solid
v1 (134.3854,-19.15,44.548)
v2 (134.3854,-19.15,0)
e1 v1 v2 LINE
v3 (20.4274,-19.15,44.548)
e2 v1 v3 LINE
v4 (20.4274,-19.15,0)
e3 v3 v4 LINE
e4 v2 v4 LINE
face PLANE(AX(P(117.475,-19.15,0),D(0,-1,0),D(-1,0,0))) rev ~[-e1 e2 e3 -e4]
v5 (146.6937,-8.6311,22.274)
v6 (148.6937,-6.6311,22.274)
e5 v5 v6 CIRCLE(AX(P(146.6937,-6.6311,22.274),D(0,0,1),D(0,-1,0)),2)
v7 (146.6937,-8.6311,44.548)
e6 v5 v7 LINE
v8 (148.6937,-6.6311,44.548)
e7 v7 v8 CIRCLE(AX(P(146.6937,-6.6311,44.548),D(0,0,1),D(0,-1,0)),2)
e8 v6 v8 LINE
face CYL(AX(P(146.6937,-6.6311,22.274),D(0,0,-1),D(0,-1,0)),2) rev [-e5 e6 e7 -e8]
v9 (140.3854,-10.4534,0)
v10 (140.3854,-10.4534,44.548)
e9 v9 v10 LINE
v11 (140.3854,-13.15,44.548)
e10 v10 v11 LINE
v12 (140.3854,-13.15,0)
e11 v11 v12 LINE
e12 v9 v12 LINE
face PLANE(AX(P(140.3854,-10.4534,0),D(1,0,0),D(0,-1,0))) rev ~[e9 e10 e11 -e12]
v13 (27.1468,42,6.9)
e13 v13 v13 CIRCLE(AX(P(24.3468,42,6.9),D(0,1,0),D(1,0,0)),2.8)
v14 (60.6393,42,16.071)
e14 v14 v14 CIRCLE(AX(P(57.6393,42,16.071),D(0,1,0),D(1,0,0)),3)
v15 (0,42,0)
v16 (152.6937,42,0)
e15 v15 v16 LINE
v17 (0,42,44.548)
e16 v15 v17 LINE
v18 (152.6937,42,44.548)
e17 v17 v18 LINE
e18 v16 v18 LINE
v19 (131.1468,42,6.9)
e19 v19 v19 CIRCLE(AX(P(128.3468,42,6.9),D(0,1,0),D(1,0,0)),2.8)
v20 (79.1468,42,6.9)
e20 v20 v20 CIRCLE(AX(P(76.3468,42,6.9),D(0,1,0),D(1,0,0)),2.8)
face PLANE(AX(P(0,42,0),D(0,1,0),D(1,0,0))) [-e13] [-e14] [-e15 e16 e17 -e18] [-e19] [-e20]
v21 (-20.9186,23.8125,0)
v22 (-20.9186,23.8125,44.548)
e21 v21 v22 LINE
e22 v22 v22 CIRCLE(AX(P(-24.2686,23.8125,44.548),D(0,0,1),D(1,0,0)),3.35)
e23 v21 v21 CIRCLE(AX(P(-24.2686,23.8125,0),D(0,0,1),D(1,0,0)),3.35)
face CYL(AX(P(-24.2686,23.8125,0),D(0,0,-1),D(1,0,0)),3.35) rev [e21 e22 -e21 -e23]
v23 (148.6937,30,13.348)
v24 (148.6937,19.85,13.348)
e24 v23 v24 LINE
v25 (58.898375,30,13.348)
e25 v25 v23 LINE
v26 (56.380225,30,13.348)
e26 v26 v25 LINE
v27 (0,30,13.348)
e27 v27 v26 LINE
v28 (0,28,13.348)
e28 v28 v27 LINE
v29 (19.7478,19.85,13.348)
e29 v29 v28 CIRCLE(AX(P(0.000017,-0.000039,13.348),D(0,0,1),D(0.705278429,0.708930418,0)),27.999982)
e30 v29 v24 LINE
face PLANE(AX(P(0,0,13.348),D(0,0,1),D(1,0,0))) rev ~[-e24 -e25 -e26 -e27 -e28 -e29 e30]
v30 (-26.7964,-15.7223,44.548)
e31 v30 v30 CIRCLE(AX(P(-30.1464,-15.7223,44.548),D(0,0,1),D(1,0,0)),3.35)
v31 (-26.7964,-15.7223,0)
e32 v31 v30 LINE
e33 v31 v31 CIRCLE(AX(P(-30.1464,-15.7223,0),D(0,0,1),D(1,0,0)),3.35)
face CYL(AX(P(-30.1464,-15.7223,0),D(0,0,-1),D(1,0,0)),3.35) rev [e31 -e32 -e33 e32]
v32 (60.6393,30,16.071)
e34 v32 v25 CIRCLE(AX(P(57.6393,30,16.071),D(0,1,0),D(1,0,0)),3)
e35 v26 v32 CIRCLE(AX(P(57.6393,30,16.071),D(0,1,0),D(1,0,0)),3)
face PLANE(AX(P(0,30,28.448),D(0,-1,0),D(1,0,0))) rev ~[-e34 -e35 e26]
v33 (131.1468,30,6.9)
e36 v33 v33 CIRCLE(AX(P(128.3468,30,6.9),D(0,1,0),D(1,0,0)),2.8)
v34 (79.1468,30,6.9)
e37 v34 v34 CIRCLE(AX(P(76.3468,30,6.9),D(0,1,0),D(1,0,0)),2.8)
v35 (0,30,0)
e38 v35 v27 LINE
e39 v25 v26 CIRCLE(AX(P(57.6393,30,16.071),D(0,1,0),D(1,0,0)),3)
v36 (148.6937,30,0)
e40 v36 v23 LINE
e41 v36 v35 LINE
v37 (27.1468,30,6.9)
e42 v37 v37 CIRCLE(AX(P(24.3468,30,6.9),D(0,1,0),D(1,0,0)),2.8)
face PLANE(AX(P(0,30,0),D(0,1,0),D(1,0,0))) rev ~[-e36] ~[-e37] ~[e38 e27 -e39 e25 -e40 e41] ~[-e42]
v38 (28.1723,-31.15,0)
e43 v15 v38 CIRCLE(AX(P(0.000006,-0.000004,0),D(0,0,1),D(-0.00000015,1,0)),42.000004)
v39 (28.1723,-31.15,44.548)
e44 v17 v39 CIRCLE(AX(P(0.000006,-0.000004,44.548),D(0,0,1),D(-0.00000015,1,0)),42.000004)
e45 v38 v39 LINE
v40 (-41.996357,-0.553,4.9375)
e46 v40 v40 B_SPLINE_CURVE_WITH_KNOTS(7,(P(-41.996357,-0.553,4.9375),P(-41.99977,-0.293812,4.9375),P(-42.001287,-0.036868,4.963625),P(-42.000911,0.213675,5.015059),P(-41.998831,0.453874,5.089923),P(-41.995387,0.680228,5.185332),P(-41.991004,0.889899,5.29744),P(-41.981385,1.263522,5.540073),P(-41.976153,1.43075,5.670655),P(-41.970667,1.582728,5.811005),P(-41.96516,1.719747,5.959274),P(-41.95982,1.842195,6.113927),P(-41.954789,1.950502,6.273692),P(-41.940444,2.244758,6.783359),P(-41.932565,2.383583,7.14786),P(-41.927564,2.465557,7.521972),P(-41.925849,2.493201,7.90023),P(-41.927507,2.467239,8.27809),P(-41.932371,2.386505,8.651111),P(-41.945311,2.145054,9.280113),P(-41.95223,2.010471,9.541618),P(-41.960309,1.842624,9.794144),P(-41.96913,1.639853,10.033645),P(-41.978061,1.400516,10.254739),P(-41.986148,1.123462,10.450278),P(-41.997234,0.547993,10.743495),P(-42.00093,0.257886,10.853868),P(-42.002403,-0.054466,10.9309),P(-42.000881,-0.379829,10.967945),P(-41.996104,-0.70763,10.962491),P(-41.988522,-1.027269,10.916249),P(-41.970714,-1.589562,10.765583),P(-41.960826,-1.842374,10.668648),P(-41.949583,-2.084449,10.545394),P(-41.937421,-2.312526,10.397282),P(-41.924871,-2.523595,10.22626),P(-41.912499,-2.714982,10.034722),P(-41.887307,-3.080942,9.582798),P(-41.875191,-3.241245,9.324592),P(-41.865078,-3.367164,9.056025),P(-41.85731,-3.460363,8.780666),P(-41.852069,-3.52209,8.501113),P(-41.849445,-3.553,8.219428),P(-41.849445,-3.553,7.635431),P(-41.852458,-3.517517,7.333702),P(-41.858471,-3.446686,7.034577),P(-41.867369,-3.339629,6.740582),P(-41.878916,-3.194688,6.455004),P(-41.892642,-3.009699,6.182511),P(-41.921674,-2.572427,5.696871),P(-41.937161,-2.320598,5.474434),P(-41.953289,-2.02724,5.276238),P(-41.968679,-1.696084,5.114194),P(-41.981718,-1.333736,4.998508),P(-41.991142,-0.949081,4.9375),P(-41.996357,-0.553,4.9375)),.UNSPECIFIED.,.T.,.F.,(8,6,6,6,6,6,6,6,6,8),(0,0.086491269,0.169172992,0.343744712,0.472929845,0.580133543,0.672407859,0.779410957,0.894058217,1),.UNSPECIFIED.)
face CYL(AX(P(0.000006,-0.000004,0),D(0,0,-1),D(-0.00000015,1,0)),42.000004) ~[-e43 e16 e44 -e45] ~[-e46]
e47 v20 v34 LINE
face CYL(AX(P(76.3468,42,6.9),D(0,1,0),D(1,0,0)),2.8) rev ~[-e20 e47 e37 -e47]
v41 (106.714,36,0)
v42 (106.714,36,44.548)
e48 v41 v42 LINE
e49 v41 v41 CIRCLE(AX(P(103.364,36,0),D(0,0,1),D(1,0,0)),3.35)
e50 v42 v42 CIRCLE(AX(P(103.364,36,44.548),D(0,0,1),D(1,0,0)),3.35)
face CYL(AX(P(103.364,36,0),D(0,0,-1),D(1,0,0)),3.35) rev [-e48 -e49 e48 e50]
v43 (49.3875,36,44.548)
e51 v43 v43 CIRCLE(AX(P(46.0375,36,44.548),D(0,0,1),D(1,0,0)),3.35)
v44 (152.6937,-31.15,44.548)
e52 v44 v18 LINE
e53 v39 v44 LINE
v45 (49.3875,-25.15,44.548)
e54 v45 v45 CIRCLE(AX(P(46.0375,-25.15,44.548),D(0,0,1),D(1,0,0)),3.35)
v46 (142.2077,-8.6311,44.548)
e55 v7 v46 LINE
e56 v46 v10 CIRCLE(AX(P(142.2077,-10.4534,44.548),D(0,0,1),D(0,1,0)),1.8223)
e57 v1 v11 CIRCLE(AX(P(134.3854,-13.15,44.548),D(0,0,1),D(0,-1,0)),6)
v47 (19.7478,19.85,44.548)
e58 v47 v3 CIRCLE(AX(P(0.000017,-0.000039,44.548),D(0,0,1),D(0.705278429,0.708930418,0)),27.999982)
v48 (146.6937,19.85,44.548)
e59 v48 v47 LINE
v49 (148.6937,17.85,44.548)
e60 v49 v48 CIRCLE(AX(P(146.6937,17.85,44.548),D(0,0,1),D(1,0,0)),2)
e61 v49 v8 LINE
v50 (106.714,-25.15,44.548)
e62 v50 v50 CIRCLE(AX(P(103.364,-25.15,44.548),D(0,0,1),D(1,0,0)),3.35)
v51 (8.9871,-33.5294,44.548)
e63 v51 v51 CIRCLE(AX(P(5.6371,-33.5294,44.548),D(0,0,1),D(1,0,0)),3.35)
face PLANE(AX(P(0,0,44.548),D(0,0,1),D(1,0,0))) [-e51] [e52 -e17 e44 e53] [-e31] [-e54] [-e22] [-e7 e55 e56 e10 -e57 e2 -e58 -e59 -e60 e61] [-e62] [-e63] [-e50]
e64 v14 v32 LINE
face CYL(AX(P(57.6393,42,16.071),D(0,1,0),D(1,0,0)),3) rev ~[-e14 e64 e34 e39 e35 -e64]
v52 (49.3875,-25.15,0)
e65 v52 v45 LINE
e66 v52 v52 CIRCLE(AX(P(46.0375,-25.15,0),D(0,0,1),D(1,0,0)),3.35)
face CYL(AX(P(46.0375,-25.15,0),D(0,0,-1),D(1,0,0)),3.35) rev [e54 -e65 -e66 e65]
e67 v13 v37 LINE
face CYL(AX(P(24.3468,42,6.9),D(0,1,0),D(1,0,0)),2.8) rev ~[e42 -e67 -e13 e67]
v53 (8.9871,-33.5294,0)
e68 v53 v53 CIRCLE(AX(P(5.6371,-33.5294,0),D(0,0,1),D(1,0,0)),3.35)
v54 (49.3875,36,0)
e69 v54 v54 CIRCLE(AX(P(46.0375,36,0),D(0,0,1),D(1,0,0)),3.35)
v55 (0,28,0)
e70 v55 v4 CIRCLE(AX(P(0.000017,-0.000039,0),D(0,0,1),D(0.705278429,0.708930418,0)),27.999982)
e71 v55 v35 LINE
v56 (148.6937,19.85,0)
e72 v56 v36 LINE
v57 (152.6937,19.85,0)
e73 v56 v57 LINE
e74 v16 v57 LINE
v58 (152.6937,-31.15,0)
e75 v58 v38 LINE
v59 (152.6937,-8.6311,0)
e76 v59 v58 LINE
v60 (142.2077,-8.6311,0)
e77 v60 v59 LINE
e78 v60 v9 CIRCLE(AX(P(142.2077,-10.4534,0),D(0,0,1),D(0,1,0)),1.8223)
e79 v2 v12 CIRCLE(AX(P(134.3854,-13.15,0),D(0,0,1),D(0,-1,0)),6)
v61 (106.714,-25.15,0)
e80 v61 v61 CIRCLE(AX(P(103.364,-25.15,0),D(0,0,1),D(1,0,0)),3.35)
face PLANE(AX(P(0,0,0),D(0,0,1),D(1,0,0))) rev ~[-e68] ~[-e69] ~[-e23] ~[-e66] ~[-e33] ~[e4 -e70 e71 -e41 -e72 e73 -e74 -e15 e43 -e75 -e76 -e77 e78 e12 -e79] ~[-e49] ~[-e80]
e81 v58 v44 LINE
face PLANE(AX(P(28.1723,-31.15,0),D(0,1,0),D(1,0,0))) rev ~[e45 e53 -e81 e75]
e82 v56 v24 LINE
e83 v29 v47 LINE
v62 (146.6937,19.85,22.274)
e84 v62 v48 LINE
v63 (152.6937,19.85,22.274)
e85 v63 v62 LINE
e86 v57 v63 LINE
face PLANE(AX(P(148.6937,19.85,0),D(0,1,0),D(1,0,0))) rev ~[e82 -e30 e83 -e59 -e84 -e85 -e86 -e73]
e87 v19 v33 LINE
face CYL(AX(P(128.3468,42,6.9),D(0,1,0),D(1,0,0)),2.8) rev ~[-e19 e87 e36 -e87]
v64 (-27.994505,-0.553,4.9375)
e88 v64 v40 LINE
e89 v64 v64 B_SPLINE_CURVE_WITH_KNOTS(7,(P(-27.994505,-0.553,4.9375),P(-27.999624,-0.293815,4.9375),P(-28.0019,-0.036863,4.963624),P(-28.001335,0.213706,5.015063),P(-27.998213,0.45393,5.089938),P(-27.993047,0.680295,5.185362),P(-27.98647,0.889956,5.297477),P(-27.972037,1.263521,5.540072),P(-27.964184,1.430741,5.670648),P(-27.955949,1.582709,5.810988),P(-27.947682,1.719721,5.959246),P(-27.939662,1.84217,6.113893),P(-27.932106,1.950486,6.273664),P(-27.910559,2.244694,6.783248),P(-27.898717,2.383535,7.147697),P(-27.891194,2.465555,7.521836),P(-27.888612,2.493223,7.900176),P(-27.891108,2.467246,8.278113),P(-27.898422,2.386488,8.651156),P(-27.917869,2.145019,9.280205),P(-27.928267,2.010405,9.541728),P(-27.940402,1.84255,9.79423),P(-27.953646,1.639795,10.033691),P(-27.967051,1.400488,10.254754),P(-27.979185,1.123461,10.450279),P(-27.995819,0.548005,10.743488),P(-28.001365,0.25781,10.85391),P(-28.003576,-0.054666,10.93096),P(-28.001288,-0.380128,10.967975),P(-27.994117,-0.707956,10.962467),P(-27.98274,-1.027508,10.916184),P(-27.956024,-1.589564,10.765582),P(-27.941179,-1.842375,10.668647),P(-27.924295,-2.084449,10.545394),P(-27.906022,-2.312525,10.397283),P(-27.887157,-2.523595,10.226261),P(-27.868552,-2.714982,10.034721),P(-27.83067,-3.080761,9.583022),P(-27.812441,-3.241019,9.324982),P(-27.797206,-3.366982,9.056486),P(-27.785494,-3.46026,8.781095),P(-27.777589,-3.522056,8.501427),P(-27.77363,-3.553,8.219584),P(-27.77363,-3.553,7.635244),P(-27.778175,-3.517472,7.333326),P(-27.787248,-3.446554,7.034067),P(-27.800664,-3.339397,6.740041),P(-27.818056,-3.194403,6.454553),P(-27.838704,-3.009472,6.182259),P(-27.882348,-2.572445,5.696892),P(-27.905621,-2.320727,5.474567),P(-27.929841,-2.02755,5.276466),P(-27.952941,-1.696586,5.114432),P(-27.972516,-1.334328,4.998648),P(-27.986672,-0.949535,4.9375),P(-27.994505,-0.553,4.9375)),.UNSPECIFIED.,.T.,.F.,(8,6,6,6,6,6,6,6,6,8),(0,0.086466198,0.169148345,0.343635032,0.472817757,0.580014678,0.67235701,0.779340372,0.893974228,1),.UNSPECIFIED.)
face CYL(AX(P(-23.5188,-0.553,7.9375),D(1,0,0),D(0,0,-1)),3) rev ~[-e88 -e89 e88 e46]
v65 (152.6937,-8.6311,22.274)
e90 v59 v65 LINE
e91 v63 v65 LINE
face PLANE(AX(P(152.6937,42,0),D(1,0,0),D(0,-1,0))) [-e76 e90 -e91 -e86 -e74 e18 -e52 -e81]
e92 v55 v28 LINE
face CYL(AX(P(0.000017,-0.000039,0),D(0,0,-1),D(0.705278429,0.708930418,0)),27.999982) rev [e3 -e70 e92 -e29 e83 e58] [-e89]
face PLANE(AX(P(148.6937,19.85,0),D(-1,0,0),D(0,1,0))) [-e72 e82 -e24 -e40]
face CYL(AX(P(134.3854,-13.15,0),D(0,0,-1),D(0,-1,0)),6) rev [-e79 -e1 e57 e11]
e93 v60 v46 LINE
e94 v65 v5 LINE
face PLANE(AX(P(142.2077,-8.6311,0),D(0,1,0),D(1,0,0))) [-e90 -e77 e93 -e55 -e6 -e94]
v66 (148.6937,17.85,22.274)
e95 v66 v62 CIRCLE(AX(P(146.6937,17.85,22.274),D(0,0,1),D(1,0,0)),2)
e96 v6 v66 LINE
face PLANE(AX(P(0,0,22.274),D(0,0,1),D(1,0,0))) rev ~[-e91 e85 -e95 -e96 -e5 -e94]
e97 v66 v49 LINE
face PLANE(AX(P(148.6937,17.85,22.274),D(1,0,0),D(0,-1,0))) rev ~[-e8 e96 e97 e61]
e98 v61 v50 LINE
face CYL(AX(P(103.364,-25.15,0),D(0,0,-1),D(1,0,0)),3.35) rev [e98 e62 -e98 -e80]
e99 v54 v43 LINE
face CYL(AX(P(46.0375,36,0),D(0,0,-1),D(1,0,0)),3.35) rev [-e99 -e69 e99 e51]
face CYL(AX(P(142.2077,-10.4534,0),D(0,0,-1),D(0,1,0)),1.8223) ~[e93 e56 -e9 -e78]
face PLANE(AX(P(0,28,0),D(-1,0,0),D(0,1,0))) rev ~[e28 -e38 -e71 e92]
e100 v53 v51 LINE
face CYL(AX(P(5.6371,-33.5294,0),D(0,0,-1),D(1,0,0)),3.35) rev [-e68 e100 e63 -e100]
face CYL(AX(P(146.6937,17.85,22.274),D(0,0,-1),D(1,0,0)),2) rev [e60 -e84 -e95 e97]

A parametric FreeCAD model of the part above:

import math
import FreeCAD as App
import Part
import Sketcher

V = App.Vector

doc = App.newDocument("Part")
body = doc.addObject("PartDesign::Body", "Body")

# Sketch on XY plane
sketch1 = doc.addObject("Sketcher::SketchObject", "Sketch")
body.addObject(sketch1)
sketch1.AttachmentSupport = (doc.XY_Plane, [""])
sketch1.MapMode = "FlatFace"
sketch1.addGeometry(Part.ArcOfCircle(Part.Circle(V(0, 0, 0), V(0, 0, 1), 27.999966), math.radians(90), math.radians(316.848637)), False)
sketch1.addGeometry(Part.LineSegment(V(0, 28, 0), V(0, 30, 0)), False)
sketch1.addGeometry(Part.LineSegment(V(0, 30, 0), V(148.6937, 30, 0)), False)
sketch1.addGeometry(Part.LineSegment(V(148.6937, 30, 0), V(148.6937, 19.85, 0)), False)
sketch1.addGeometry(Part.LineSegment(V(148.6937, 19.85, 0), V(152.6937, 19.85, 0)), False)
sketch1.addGeometry(Part.LineSegment(V(152.6937, 19.85, 0), V(152.6937, 42, 0)), False)
sketch1.addGeometry(Part.LineSegment(V(152.6937, 42, 0), V(0, 42, 0)), False)
sketch1.addGeometry(Part.ArcOfCircle(Part.Circle(V(0, 0, 0), V(0, 0, 1), 42), math.radians(90), math.radians(312.126434)), False)
sketch1.addGeometry(Part.LineSegment(V(28.1723, -31.15, 0), V(152.6937, -31.15, 0)), False)
sketch1.addGeometry(Part.LineSegment(V(152.6937, -31.15, 0), V(152.6937, -8.6311, 0)), False)
sketch1.addGeometry(Part.LineSegment(V(152.6937, -8.6311, 0), V(142.2077, -8.6311, 0)), False)
sketch1.addGeometry(Part.ArcOfCircle(Part.Circle(V(142.2077, -10.4534, 0), V(0, 0, 1), 1.8223), math.radians(90), math.radians(180)), False)
sketch1.addGeometry(Part.LineSegment(V(140.3854, -10.4534, 0), V(140.3854, -13.15, 0)), False)
sketch1.addGeometry(Part.ArcOfCircle(Part.Circle(V(134.3854, -13.15, 0), V(0, 0, 1), 6), math.radians(-90), math.radians(0)), False)
sketch1.addGeometry(Part.LineSegment(V(134.3854, -19.15, 0), V(20.4274, -19.15, 0)), False)
sketch1.addGeometry(Part.Circle(V(5.6371, -33.5294, 0), V(0, 0, 1), 3.35), False)
sketch1.addGeometry(Part.Circle(V(46.0375, -25.15, 0), V(0, 0, 1), 3.35), False)
sketch1.addGeometry(Part.Circle(V(-30.1464, -15.7223, 0), V(0, 0, 1), 3.35), False)
sketch1.addGeometry(Part.Circle(V(103.364, -25.15, 0), V(0, 0, 1), 3.35), False)
sketch1.addGeometry(Part.Circle(V(-24.2686, 23.8125, 0), V(0, 0, 1), 3.35), False)
sketch1.addGeometry(Part.Circle(V(46.0375, 36, 0), V(0, 0, 1), 3.35), False)
sketch1.addGeometry(Part.Circle(V(103.364, 36, 0), V(0, 0, 1), 3.35), False)
sketch1.addConstraint(Sketcher.Constraint("Coincident", 0, 1, 1, 1))
sketch1.addConstraint(Sketcher.Constraint("Coincident", 1, 2, 2, 1))
sketch1.addConstraint(Sketcher.Constraint("Coincident", 2, 2, 3, 1))
sketch1.addConstraint(Sketcher.Constraint("Coincident", 3, 2, 4, 1))
sketch1.addConstraint(Sketcher.Constraint("Coincident", 4, 2, 5, 1))
sketch1.addConstraint(Sketcher.Constraint("Coincident", 5, 2, 6, 1))
sketch1.addConstraint(Sketcher.Constraint("Tangent", 6, 2, 7, 1))
sketch1.addConstraint(Sketcher.Constraint("Coincident", 7, 2, 8, 1))
sketch1.addConstraint(Sketcher.Constraint("Coincident", 8, 2, 9, 1))
sketch1.addConstraint(Sketcher.Constraint("Coincident", 9, 2, 10, 1))
sketch1.addConstraint(Sketcher.Constraint("Tangent", 10, 2, 11, 1))
sketch1.addConstraint(Sketcher.Constraint("Tangent", 11, 2, 12, 1))
sketch1.addConstraint(Sketcher.Constraint("Tangent", 12, 2, 13, 2))
sketch1.addConstraint(Sketcher.Constraint("Tangent", 13, 1, 14, 1))
sketch1.addConstraint(Sketcher.Constraint("Coincident", 14, 2, 0, 2))
sketch1.addConstraint(Sketcher.Constraint("Vertical", 1))
sketch1.addConstraint(Sketcher.Constraint("Horizontal", 2))
sketch1.addConstraint(Sketcher.Constraint("Vertical", 3))
sketch1.addConstraint(Sketcher.Constraint("Horizontal", 4))
sketch1.addConstraint(Sketcher.Constraint("Vertical", 5))
sketch1.addConstraint(Sketcher.Constraint("Horizontal", 6))
sketch1.addConstraint(Sketcher.Constraint("Horizontal", 8))
sketch1.addConstraint(Sketcher.Constraint("Vertical", 9))
sketch1.addConstraint(Sketcher.Constraint("Horizontal", 10))
sketch1.addConstraint(Sketcher.Constraint("Vertical", 12))
sketch1.addConstraint(Sketcher.Constraint("Horizontal", 14))
sketch1.addConstraint(Sketcher.Constraint("Coincident", 0, 3, -1, 1))
sketch1.addConstraint(Sketcher.Constraint("Coincident", 7, 3, -1, 1))
sketch1.addConstraint(Sketcher.Constraint("Equal", 15, 16))
sketch1.addConstraint(Sketcher.Constraint("Equal", 16, 17))
sketch1.addConstraint(Sketcher.Constraint("Equal", 17, 18))
sketch1.addConstraint(Sketcher.Constraint("Equal", 18, 19))
sketch1.addConstraint(Sketcher.Constraint("Equal", 19, 20))
sketch1.addConstraint(Sketcher.Constraint("Equal", 20, 21))
sketch1.addConstraint(Sketcher.Constraint("PointOnObject", 0, 1, -2))
sketch1.addConstraint(Sketcher.Constraint("Horizontal", 16, 3, 18, 3))
sketch1.addConstraint(Sketcher.Constraint("Horizontal", 20, 3, 21, 3))
sketch1.addConstraint(Sketcher.Constraint("Vertical", 16, 3, 20, 3))
sketch1.addConstraint(Sketcher.Constraint("Vertical", 18, 3, 21, 3))
sketch1.addConstraint(Sketcher.Constraint("Vertical", 5, 2, 8, 2))
sketch1.addConstraint(Sketcher.Constraint("Radius", 0, 28.0))
sketch1.addConstraint(Sketcher.Constraint("Radius", 7, 42.0))
sketch1.addConstraint(Sketcher.Constraint("Radius", 13, 6.0))
sketch1.addConstraint(Sketcher.Constraint("Diameter", 15, 6.7))
sketch1.addConstraint(Sketcher.Constraint("DistanceX", 4, 1, 4, 2, 4.0))
sketch1.addConstraint(Sketcher.Constraint("DistanceY", 1, 1, 1, 2, 2.0))
sketch1.addConstraint(Sketcher.Constraint("DistanceY", 16, 3, 13, 3, 12.0))
sketch1.addConstraint(Sketcher.Constraint("DistanceY", 1, 2, 20, 3, 6.0))
sketch1.addConstraint(Sketcher.Constraint("DistanceY", 7, 2, 16, 3, 6.0))
sketch1.addConstraint(Sketcher.Constraint("DistanceY", 13, 3, 3, 2, 33.0))
sketch1.addConstraint(Sketcher.Constraint("DistanceY", 3, 2, 3, 1, 10.15))
sketch1.addConstraint(Sketcher.Constraint("Radius", 11, 1.8223))
sketch1.addConstraint(Sketcher.Constraint("DistanceX", 10, 2, 10, 1, 10.486))
sketch1.addConstraint(Sketcher.Constraint("DistanceX", 14, 2, 14, 1, 113.958))
sketch1.addConstraint(Sketcher.Constraint("DistanceY", 9, 1, 9, 2, 22.519))
sketch1.addConstraint(Sketcher.Constraint("DistanceX", 14, 2, 16, 3, 25.61))
sketch1.addConstraint(Sketcher.Constraint("DistanceX", -1, 1, 15, 3, 5.637))
sketch1.addConstraint(Sketcher.Constraint("DistanceX", -1, 1, 18, 3, 103.364))
sketch1.addConstraint(Sketcher.Constraint("DistanceY", 15, 3, 11, 3, 23.076))
sketch1.addConstraint(Sketcher.Constraint("DistanceY", 15, 3, 17, 3, 17.807))
sketch1.addConstraint(Sketcher.Constraint("DistanceX", 17, 3, 16, 3, 76.184))
sketch1.addConstraint(Sketcher.Constraint("DistanceY", 15, 3, 19, 3, 57.342))
sketch1.addConstraint(Sketcher.Constraint("DistanceX", 19, 3, 16, 3, 70.306))
pad1 = doc.addObject("PartDesign::Pad", "Pad")
body.addObject(pad1)
pad1.Profile = sketch1
pad1.Length = 28.448

# Sketch on XY plane
sketch2 = doc.addObject("Sketcher::SketchObject", "Sketch001")
body.addObject(sketch2)
sketch2.AttachmentSupport = (doc.XY_Plane, [""])
sketch2.MapMode = "FlatFace"
sketch2.AttachmentOffset = App.Placement(V(0, 0, 28.448), App.Rotation())
sketch2.addGeometry(Part.LineSegment(V(19.7478, 19.85, 0), V(152.6937, 19.85, 0)), False)
sketch2.addGeometry(Part.LineSegment(V(152.6937, 19.85, 0), V(152.6937, 42, 0)), False)
sketch2.addGeometry(Part.LineSegment(V(152.6937, 42, 0), V(0, 42, 0)), False)
sketch2.addGeometry(Part.ArcOfCircle(Part.Circle(V(0, 0, 0), V(0, 0, 1), 42), math.radians(90), math.radians(312.126434)), False)
sketch2.addGeometry(Part.LineSegment(V(28.1723, -31.15, 0), V(152.6937, -31.15, 0)), False)
sketch2.addGeometry(Part.LineSegment(V(152.6937, -31.15, 0), V(152.6937, -8.6311, 0)), False)
sketch2.addGeometry(Part.LineSegment(V(152.6937, -8.6311, 0), V(142.2077, -8.6311, 0)), False)
sketch2.addGeometry(Part.ArcOfCircle(Part.Circle(V(142.2077, -10.4534, 0), V(0, 0, 1), 1.8223), math.radians(90), math.radians(180)), False)
sketch2.addGeometry(Part.LineSegment(V(140.3854, -10.4534, 0), V(140.3854, -13.15, 0)), False)
sketch2.addGeometry(Part.ArcOfCircle(Part.Circle(V(134.3854, -13.15, 0), V(0, 0, 1), 6), math.radians(-90), math.radians(0)), False)
sketch2.addGeometry(Part.LineSegment(V(134.3854, -19.15, 0), V(20.4274, -19.15, 0)), False)
sketch2.addGeometry(Part.ArcOfCircle(Part.Circle(V(0, 0, 0), V(0, 0, 1), 27.999966), math.radians(45.147877), math.radians(316.848637)), False)
sketch2.addGeometry(Part.Circle(V(-24.2686, 23.8125, 0), V(0, 0, 1), 3.35), False)
sketch2.addGeometry(Part.Circle(V(46.0375, 36, 0), V(0, 0, 1), 3.35), False)
sketch2.addGeometry(Part.Circle(V(103.364, 36, 0), V(0, 0, 1), 3.35), False)
sketch2.addGeometry(Part.Circle(V(5.6371, -33.5294, 0), V(0, 0, 1), 3.35), False)
sketch2.addGeometry(Part.Circle(V(46.0375, -25.15, 0), V(0, 0, 1), 3.35), False)
sketch2.addGeometry(Part.Circle(V(-30.1464, -15.7223, 0), V(0, 0, 1), 3.35), False)
sketch2.addGeometry(Part.Circle(V(103.364, -25.15, 0), V(0, 0, 1), 3.35), False)
sketch2.addConstraint(Sketcher.Constraint("Coincident", 0, 2, 1, 1))
sketch2.addConstraint(Sketcher.Constraint("Coincident", 1, 2, 2, 1))
sketch2.addConstraint(Sketcher.Constraint("Tangent", 2, 2, 3, 1))
sketch2.addConstraint(Sketcher.Constraint("Coincident", 3, 2, 4, 1))
sketch2.addConstraint(Sketcher.Constraint("Coincident", 4, 2, 5, 1))
sketch2.addConstraint(Sketcher.Constraint("Coincident", 5, 2, 6, 1))
sketch2.addConstraint(Sketcher.Constraint("Tangent", 6, 2, 7, 1))
sketch2.addConstraint(Sketcher.Constraint("Tangent", 7, 2, 8, 1))
sketch2.addConstraint(Sketcher.Constraint("Tangent", 8, 2, 9, 2))
sketch2.addConstraint(Sketcher.Constraint("Tangent", 9, 1, 10, 1))
sketch2.addConstraint(Sketcher.Constraint("Coincident", 10, 2, 11, 2))
sketch2.addConstraint(Sketcher.Constraint("Coincident", 11, 1, 0, 1))
sketch2.addConstraint(Sketcher.Constraint("Horizontal", 0))
sketch2.addConstraint(Sketcher.Constraint("Vertical", 1))
sketch2.addConstraint(Sketcher.Constraint("Horizontal", 2))
sketch2.addConstraint(Sketcher.Constraint("Horizontal", 4))
sketch2.addConstraint(Sketcher.Constraint("Vertical", 5))
sketch2.addConstraint(Sketcher.Constraint("Horizontal", 6))
sketch2.addConstraint(Sketcher.Constraint("Vertical", 8))
sketch2.addConstraint(Sketcher.Constraint("Horizontal", 10))
sketch2.addConstraint(Sketcher.Constraint("Coincident", 3, 3, -1, 1))
sketch2.addConstraint(Sketcher.Constraint("Coincident", 11, 3, -1, 1))
sketch2.addConstraint(Sketcher.Constraint("Equal", 12, 13))
sketch2.addConstraint(Sketcher.Constraint("Equal", 13, 14))
sketch2.addConstraint(Sketcher.Constraint("Equal", 14, 15))
sketch2.addConstraint(Sketcher.Constraint("Equal", 15, 16))
sketch2.addConstraint(Sketcher.Constraint("Equal", 16, 17))
sketch2.addConstraint(Sketcher.Constraint("Equal", 17, 18))
sketch2.addConstraint(Sketcher.Constraint("Horizontal", 13, 3, 14, 3))
sketch2.addConstraint(Sketcher.Constraint("Horizontal", 16, 3, 18, 3))
sketch2.addConstraint(Sketcher.Constraint("Vertical", 13, 3, 16, 3))
sketch2.addConstraint(Sketcher.Constraint("Vertical", 14, 3, 18, 3))
sketch2.addConstraint(Sketcher.Constraint("Vertical", 1, 2, 4, 2))
sketch2.addConstraint(Sketcher.Constraint("Radius", 3, 42.0))
sketch2.addConstraint(Sketcher.Constraint("Radius", 9, 6.0))
sketch2.addConstraint(Sketcher.Constraint("Radius", 11, 28.0))
sketch2.addConstraint(Sketcher.Constraint("Diameter", 12, 6.7))
sketch2.addConstraint(Sketcher.Constraint("DistanceY", 18, 3, 9, 3, 12.0))
sketch2.addConstraint(Sketcher.Constraint("DistanceY", 14, 3, 1, 2, 6.0))
sketch2.addConstraint(Sketcher.Constraint("DistanceY", 3, 2, 16, 3, 6.0))
sketch2.addConstraint(Sketcher.Constraint("DistanceY", 10, 2, 11, 1, 39.0))
sketch2.addConstraint(Sketcher.Constraint("DistanceY", 1, 1, 1, 2, 22.15))
sketch2.addConstraint(Sketcher.Constraint("Radius", 7, 1.8223))
sketch2.addConstraint(Sketcher.Constraint("DistanceX", 0, 1, 0, 2, 132.946))
sketch2.addConstraint(Sketcher.Constraint("DistanceX", 6, 2, 6, 1, 10.486))
sketch2.addConstraint(Sketcher.Constraint("DistanceY", 5, 1, 5, 2, 22.519))
sketch2.addConstraint(Sketcher.Constraint("DistanceX", 10, 2, 16, 3, 25.61))
sketch2.addConstraint(Sketcher.Constraint("DistanceX", -1, 1, 14, 3, 103.364))
sketch2.addConstraint(Sketcher.Constraint("DistanceX", -1, 1, 15, 3, 5.637))
sketch2.addConstraint(Sketcher.Constraint("DistanceX", 12, 3, 9, 3, 158.654))
sketch2.addConstraint(Sketcher.Constraint("DistanceY", 7, 3, 12, 3, 34.266))
sketch2.addConstraint(Sketcher.Constraint("DistanceY", 15, 3, 12, 3, 57.342))
sketch2.addConstraint(Sketcher.Constraint("DistanceY", 15, 3, 17, 3, 17.807))
sketch2.addConstraint(Sketcher.Constraint("DistanceX", 17, 3, 16, 3, 76.184))
pad2 = doc.addObject("PartDesign::Pad", "Pad001")
body.addObject(pad2)
pad2.Profile = sketch2
pad2.Length = 16.1

# Sketch on XZ plane
sketch3 = doc.addObject("Sketcher::SketchObject", "Sketch002")
body.addObject(sketch3)
sketch3.AttachmentSupport = (doc.XZ_Plane, [""])
sketch3.MapMode = "FlatFace"
sketch3.AttachmentOffset = App.Placement(V(0, 0, -42), App.Rotation())
sketch3.addGeometry(Part.Circle(V(24.3468, 6.9, 0), V(0, 0, 1), 2.8), False)
sketch3.addGeometry(Part.Circle(V(76.3468, 6.9, 0), V(0, 0, 1), 2.8), False)
sketch3.addGeometry(Part.Circle(V(128.3468, 6.9, 0), V(0, 0, 1), 2.8), False)
sketch3.addGeometry(Part.Circle(V(57.6393, 16.071, 0), V(0, 0, 1), 3), False)
sketch3.addConstraint(Sketcher.Constraint("Equal", 0, 1))
sketch3.addConstraint(Sketcher.Constraint("Equal", 1, 2))
sketch3.addConstraint(Sketcher.Constraint("Horizontal", 0, 3, 1, 3))
sketch3.addConstraint(Sketcher.Constraint("Horizontal", 1, 3, 2, 3))
sketch3.addConstraint(Sketcher.Constraint("Diameter", 0, 5.6))
sketch3.addConstraint(Sketcher.Constraint("Diameter", 3, 6.0))
sketch3.addConstraint(Sketcher.Constraint("DistanceX", 0, 3, 1, 3, 52.0))
sketch3.addConstraint(Sketcher.Constraint("DistanceX", 1, 3, 2, 3, 52.0))
sketch3.addConstraint(Sketcher.Constraint("DistanceY", -1, 1, 0, 3, 6.9))
sketch3.addConstraint(Sketcher.Constraint("DistanceX", -1, 1, 0, 3, 24.3468))
sketch3.addConstraint(Sketcher.Constraint("DistanceY", -1, 1, 3, 3, 16.071))
sketch3.addConstraint(Sketcher.Constraint("DistanceX", -1, 1, 3, 3, 57.6393))
pocket1 = doc.addObject("PartDesign::Pocket", "Pocket")
body.addObject(pocket1)
pocket1.Profile = sketch3
pocket1.Length = 15.1
pocket1.Reversed = True

# Sketch on YZ plane
sketch4 = doc.addObject("Sketcher::SketchObject", "Sketch003")
body.addObject(sketch4)
sketch4.AttachmentSupport = (doc.YZ_Plane, [""])
sketch4.MapMode = "FlatFace"
sketch4.AttachmentOffset = App.Placement(V(0, 0, -23.5188), App.Rotation())
sketch4.addGeometry(Part.Circle(V(-0.553, 7.9375, 0), V(0, 0, 1), 3), False)
sketch4.addConstraint(Sketcher.Constraint("Diameter", 0, 6.0))
sketch4.addConstraint(Sketcher.Constraint("DistanceX", 0, 3, -1, 1, 0.553))
sketch4.addConstraint(Sketcher.Constraint("DistanceY", -1, 1, 0, 3, 7.9375))
pocket2 = doc.addObject("PartDesign::Pocket", "Pocket001")
body.addObject(pocket2)
pocket2.Profile = sketch4
pocket2.Length = 30

# Sketch on XY plane
sketch5 = doc.addObject("Sketcher::SketchObject", "Sketch004")
body.addObject(sketch5)
sketch5.AttachmentSupport = (doc.XY_Plane, [""])
sketch5.MapMode = "FlatFace"
sketch5.AttachmentOffset = App.Placement(V(0, 0, 28.448), App.Rotation())
sketch5.addGeometry(Part.LineSegment(V(19.7478, 19.85, 0), V(148.6937, 19.85, 0)), False)
sketch5.addGeometry(Part.LineSegment(V(148.6937, 19.85, 0), V(148.6937, 30, 0)), False)
sketch5.addGeometry(Part.LineSegment(V(148.6937, 30, 0), V(0, 30, 0)), False)
sketch5.addGeometry(Part.LineSegment(V(0, 30, 0), V(0, 28, 0)), False)
sketch5.addGeometry(Part.ArcOfCircle(Part.Circle(V(0, 0, 0), V(0, 0, 1), 27.999966), math.radians(45.147877), math.radians(90)), False)
sketch5.addConstraint(Sketcher.Constraint("Coincident", 0, 2, 1, 1))
sketch5.addConstraint(Sketcher.Constraint("Coincident", 1, 2, 2, 1))
sketch5.addConstraint(Sketcher.Constraint("Coincident", 2, 2, 3, 1))
sketch5.addConstraint(Sketcher.Constraint("Coincident", 3, 2, 4, 2))
sketch5.addConstraint(Sketcher.Constraint("Coincident", 4, 1, 0, 1))
sketch5.addConstraint(Sketcher.Constraint("Horizontal", 0))
sketch5.addConstraint(Sketcher.Constraint("Vertical", 1))
sketch5.addConstraint(Sketcher.Constraint("Horizontal", 2))
sketch5.addConstraint(Sketcher.Constraint("Vertical", 3))
sketch5.addConstraint(Sketcher.Constraint("Coincident", 4, 3, -1, 1))
sketch5.addConstraint(Sketcher.Constraint("PointOnObject", 2, 2, -2))
sketch5.addConstraint(Sketcher.Constraint("Radius", 4, 28.0))
sketch5.addConstraint(Sketcher.Constraint("DistanceY", 3, 2, 3, 1, 2.0))
sketch5.addConstraint(Sketcher.Constraint("DistanceY", 1, 1, 1, 2, 10.15))
sketch5.addConstraint(Sketcher.Constraint("DistanceX", 0, 1, 0, 2, 128.946))
pad3 = doc.addObject("PartDesign::Pad", "Pad002")
body.addObject(pad3)
pad3.Profile = sketch5
pad3.Length = 15.1
pad3.Reversed = True

# Sketch on XY plane
sketch6 = doc.addObject("Sketcher::SketchObject", "Sketch005")
body.addObject(sketch6)
sketch6.AttachmentSupport = (doc.XY_Plane, [""])
sketch6.MapMode = "FlatFace"
sketch6.AttachmentOffset = App.Placement(V(0, 0, 22.274), App.Rotation())
sketch6.addGeometry(Part.LineSegment(V(148.6937, 19.85, 0), V(146.6937, 19.85, 0)), False)
sketch6.addGeometry(Part.ArcOfCircle(Part.Circle(V(146.6937, 17.85, 0), V(0, 0, 1), 2), math.radians(0), math.radians(90)), False)
sketch6.addGeometry(Part.LineSegment(V(148.6937, 17.85, 0), V(148.6937, -6.6311, 0)), False)
sketch6.addGeometry(Part.ArcOfCircle(Part.Circle(V(146.6937, -6.6311, 0), V(0, 0, 1), 2), math.radians(-90), math.radians(0)), False)
sketch6.addGeometry(Part.LineSegment(V(146.6937, -8.6311, 0), V(152.6937, -8.6311, 0)), False)
sketch6.addGeometry(Part.LineSegment(V(152.6937, -8.6311, 0), V(152.6937, 30, 0)), False)
sketch6.addGeometry(Part.LineSegment(V(152.6937, 30, 0), V(146.6937, 30, 0)), False)
sketch6.addGeometry(Part.ArcOfCircle(Part.Circle(V(146.6937, 28, 0), V(0, 0, 1), 2), math.radians(0), math.radians(90)), False)
sketch6.addGeometry(Part.LineSegment(V(148.6937, 28, 0), V(148.6937, 19.85, 0)), False)
sketch6.addConstraint(Sketcher.Constraint("Tangent", 0, 2, 1, 2))
sketch6.addConstraint(Sketcher.Constraint("Tangent", 1, 1, 2, 1))
sketch6.addConstraint(Sketcher.Constraint("Tangent", 2, 2, 3, 2))
sketch6.addConstraint(Sketcher.Constraint("Tangent", 3, 1, 4, 1))
sketch6.addConstraint(Sketcher.Constraint("Coincident", 4, 2, 5, 1))
sketch6.addConstraint(Sketcher.Constraint("Coincident", 5, 2, 6, 1))
sketch6.addConstraint(Sketcher.Constraint("Tangent", 6, 2, 7, 2))
sketch6.addConstraint(Sketcher.Constraint("Tangent", 7, 1, 8, 1))
sketch6.addConstraint(Sketcher.Constraint("Coincident", 8, 2, 0, 1))
sketch6.addConstraint(Sketcher.Constraint("Horizontal", 0))
sketch6.addConstraint(Sketcher.Constraint("Vertical", 2))
sketch6.addConstraint(Sketcher.Constraint("Horizontal", 4))
sketch6.addConstraint(Sketcher.Constraint("Vertical", 5))
sketch6.addConstraint(Sketcher.Constraint("Horizontal", 6))
sketch6.addConstraint(Sketcher.Constraint("Vertical", 8))
sketch6.addConstraint(Sketcher.Constraint("Equal", 1, 3))
sketch6.addConstraint(Sketcher.Constraint("Equal", 3, 7))
sketch6.addConstraint(Sketcher.Constraint("Vertical", 3, 3, 7, 3))
sketch6.addConstraint(Sketcher.Constraint("Radius", 1, 2.0))
sketch6.addConstraint(Sketcher.Constraint("DistanceX", 4, 1, 4, 2, 6.0))
sketch6.addConstraint(Sketcher.Constraint("DistanceY", -1, 1, 7, 3, 28.0))
sketch6.addConstraint(Sketcher.Constraint("DistanceY", 8, 2, 8, 1, 8.15))
sketch6.addConstraint(Sketcher.Constraint("DistanceY", 2, 2, 2, 1, 24.481))
sketch6.addConstraint(Sketcher.Constraint("DistanceX", -1, 1, 1, 3, 146.6937))
pad4 = doc.addObject("PartDesign::Pad", "Pad003")
body.addObject(pad4)
pad4.Profile = sketch6
pad4.Length = 22.274

doc.recompute()
